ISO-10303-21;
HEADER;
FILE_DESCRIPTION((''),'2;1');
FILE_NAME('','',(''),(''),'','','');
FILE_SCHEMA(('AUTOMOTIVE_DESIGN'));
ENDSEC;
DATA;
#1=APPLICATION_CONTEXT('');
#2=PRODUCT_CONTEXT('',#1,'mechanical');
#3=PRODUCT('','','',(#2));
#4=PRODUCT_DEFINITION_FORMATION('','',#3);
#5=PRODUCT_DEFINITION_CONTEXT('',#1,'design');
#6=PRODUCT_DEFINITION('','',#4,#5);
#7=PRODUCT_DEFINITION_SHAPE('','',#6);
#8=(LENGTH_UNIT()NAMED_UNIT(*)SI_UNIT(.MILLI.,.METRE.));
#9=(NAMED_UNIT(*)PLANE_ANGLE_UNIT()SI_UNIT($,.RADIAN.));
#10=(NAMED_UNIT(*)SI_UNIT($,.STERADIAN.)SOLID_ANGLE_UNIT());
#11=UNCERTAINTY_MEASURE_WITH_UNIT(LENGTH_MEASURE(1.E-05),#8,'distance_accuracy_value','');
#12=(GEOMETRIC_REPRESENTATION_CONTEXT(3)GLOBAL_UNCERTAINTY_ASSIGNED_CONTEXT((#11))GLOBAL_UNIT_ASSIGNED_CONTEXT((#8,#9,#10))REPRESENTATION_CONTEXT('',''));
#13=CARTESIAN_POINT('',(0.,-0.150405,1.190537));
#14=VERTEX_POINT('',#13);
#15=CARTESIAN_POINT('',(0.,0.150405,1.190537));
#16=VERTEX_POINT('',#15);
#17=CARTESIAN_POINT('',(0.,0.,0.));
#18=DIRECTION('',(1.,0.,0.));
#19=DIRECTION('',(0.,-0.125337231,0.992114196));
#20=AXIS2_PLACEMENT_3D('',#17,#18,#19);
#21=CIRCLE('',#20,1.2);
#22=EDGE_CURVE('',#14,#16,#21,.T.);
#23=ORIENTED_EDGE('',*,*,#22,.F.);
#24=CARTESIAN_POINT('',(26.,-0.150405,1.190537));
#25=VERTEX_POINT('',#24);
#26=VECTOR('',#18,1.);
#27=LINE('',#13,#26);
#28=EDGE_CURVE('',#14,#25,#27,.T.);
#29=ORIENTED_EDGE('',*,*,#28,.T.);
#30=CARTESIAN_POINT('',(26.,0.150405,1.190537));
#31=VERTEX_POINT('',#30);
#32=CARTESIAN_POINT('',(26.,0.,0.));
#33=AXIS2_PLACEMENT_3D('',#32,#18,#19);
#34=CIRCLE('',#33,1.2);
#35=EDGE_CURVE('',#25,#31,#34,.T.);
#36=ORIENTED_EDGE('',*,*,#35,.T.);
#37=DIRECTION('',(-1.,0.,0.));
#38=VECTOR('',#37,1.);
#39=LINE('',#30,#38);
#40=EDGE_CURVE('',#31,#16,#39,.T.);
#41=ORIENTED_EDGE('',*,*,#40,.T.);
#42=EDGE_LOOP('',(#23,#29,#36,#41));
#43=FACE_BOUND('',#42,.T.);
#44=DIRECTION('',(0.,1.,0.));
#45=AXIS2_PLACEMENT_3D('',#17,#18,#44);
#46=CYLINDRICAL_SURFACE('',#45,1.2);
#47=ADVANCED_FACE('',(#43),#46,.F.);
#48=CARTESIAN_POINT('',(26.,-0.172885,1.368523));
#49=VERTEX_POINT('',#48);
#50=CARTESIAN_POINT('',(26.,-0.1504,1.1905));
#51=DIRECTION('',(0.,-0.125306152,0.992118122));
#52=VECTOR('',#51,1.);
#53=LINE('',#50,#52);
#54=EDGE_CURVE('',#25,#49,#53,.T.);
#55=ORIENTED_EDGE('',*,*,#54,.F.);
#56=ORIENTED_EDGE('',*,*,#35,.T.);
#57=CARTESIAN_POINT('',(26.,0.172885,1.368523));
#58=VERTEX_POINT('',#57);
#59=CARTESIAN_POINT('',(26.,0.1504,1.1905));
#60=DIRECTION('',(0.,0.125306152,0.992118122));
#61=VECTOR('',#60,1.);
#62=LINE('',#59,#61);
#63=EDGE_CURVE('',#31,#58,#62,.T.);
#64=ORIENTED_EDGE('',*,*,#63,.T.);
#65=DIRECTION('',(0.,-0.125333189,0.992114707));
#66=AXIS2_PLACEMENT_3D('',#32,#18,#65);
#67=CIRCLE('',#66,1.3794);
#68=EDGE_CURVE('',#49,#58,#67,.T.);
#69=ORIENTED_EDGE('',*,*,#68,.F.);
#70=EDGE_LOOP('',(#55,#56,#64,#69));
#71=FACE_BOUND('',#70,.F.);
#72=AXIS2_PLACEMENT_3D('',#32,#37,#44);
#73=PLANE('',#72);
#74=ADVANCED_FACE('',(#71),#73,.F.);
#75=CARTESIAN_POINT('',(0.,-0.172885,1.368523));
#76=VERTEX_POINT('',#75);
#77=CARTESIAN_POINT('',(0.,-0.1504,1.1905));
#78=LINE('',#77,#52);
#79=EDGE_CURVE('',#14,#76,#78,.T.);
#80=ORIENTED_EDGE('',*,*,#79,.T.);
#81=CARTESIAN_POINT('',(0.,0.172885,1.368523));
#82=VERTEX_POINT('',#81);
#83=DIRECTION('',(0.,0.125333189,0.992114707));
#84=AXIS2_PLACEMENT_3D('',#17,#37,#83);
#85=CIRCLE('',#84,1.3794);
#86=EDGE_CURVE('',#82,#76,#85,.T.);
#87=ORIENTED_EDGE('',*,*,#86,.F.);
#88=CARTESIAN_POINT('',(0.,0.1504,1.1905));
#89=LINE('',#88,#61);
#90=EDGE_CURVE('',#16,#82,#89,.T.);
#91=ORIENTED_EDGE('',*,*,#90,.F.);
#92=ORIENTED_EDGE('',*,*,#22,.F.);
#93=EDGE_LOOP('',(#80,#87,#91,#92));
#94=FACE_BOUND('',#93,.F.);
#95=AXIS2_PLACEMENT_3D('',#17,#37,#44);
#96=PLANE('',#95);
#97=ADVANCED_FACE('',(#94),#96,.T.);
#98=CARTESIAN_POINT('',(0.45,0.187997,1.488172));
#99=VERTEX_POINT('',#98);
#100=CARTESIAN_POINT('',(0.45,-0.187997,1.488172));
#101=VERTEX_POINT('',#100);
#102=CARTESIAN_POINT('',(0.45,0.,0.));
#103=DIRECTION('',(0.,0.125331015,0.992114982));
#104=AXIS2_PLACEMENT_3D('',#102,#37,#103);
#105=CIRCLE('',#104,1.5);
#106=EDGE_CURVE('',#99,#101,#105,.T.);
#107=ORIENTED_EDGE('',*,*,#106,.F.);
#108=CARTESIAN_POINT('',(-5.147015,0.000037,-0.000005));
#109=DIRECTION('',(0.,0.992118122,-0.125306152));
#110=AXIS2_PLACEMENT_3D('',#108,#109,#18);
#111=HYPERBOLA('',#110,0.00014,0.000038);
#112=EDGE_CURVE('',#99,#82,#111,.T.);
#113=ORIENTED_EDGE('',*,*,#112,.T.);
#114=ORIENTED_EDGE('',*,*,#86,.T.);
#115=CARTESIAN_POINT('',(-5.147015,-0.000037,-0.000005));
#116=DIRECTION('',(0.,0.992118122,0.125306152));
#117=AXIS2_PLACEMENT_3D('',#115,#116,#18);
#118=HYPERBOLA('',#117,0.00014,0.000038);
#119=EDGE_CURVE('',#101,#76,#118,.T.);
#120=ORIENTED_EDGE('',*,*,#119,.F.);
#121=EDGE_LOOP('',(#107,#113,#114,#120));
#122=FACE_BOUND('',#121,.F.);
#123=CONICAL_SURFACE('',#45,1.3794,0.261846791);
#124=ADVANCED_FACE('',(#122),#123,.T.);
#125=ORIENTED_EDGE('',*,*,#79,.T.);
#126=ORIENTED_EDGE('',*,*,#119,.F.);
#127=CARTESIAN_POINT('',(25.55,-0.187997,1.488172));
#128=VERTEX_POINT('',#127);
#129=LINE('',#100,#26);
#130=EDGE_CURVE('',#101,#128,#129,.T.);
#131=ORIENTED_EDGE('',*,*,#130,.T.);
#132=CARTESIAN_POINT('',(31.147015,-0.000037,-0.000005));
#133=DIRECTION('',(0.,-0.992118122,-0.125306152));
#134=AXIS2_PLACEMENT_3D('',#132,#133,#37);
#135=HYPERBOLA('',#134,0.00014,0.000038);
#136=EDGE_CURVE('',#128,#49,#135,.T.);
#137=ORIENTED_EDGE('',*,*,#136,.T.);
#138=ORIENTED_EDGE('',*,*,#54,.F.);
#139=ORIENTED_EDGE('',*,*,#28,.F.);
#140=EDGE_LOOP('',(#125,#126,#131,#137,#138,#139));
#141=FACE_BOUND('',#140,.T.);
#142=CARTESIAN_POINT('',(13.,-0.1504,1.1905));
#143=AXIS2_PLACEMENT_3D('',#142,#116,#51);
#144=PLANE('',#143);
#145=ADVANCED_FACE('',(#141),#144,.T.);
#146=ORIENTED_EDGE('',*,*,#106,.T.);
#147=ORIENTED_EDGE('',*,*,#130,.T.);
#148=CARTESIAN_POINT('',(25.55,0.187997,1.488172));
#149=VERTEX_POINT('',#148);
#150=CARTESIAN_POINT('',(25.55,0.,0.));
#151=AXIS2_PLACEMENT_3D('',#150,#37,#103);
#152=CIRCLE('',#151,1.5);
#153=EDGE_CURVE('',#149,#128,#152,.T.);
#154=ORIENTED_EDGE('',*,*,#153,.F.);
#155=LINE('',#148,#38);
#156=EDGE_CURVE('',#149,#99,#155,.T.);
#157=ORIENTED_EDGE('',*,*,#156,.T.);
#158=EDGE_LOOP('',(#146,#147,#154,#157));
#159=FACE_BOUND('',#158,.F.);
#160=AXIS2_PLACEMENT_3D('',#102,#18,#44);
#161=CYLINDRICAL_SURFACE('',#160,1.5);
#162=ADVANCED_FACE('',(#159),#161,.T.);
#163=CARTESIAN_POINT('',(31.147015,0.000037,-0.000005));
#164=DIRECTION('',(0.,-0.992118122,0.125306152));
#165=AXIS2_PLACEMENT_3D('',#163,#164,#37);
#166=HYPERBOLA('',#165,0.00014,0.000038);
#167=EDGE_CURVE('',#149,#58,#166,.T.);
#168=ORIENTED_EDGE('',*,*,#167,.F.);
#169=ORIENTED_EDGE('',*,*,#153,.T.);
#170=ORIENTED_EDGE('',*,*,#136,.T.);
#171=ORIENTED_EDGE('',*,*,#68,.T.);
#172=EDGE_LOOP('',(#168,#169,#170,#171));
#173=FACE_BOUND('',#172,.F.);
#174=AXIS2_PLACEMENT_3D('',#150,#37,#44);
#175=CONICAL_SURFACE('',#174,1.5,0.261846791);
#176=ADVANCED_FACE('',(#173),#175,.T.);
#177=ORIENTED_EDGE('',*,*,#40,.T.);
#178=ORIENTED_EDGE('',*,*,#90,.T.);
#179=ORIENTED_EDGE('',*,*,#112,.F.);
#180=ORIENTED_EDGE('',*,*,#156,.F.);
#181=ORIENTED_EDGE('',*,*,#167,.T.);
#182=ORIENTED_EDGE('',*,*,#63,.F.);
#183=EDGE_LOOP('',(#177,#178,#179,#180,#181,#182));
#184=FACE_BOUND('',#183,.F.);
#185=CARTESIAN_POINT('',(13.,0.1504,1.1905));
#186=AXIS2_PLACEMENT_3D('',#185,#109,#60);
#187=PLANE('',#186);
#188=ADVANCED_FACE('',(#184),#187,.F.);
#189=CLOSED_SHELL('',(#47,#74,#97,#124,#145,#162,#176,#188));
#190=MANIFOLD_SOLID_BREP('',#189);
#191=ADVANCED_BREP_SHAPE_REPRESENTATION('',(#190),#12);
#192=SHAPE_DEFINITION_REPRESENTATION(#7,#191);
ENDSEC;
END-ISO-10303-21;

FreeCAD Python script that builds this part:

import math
import FreeCAD as App
import Part
import Sketcher
Q = App.Units.Quantity


def add_polygon(sketch, points):
    """Adds a closed chain of lines whose ends are joined by coincident constraints."""
    first, n = sketch.GeometryCount, len(points)
    for a, b in zip(points, points[1:] + points[:1]):
        sketch.addGeometry(Part.LineSegment(App.Vector(*a, 0), App.Vector(*b, 0)), False)
    for i in range(n):
        sketch.addConstraint(Sketcher.Constraint("Coincident", first + i, 2, first + (i + 1) % n, 1))

doc = App.newDocument("Part")
params = doc.addObject("Spreadsheet::Sheet", "Params")
for row, (alias, value) in enumerate([
    ("sketch1_width", "26 mm"),
    ("sketch1_width2", "25.1 mm"),
    ("revolution_angle", "360 deg"),
    ("sketch2_radius", "1.5 mm"),
    ("sketch2_radius2", "1.2 mm"),
    ("pocket1_length", "26 mm"),
], start=1):
    params.set(f"A{row}", alias)
    params.set(f"B{row}", "=" + value)
    params.setAlias(f"B{row}", alias)

body = doc.addObject("PartDesign::Body", "Body")

# Sketch on XY plane
sketch1 = doc.addObject("Sketcher::SketchObject", "Sketch")
body.addObject(sketch1)
sketch1.AttachmentSupport = (doc.XY_Plane, [""])
sketch1.MapMode = "FlatFace"
add_polygon(sketch1, [(0, 1.38), (0, 1.2), (26, 1.2), (26, 1.38), (25.55, 1.5), (0.45, 1.5)])  # lines 0-5
sketch1.addConstraint([
    Sketcher.Constraint("Vertical", 0),
    Sketcher.Constraint("Horizontal", 1),
    Sketcher.Constraint("Vertical", 2),
    Sketcher.Constraint("Horizontal", 4),
    Sketcher.Constraint("PointOnObject", 0, 2, -2),
    Sketcher.Constraint("Horizontal", 2, 2, 5, 2),
    Sketcher.Constraint("Equal", 3, 5),
    Sketcher.Constraint("DistanceX", 1, 1, 1, 2, Q("26 mm")),
    Sketcher.Constraint("DistanceX", 4, 2, 4, 1, Q("25.1 mm")),
    Sketcher.Constraint("DistanceY", -1, 1, 0, 2, Q("1.2 mm")),
    Sketcher.Constraint("DistanceY", -1, 1, 3, 2, Q("1.5 mm")),
    Sketcher.Constraint("DistanceY", 2, 2, 3, 2, Q("0.1206 mm")),
])
sketch1.setExpression("Constraints[13]", "Params.sketch1_width")
sketch1.setExpression("Constraints[14]", "Params.sketch1_width2")
revolution = doc.addObject("PartDesign::Revolution", "Revolution")
body.addObject(revolution)
revolution.Profile = sketch1
revolution.ReferenceAxis = (sketch1, ["H_Axis"])
revolution.setExpression("Angle", "Params.revolution_angle")

# Sketch on YZ plane
sketch2 = doc.addObject("Sketcher::SketchObject", "Sketch001")
body.addObject(sketch2)
sketch2.AttachmentSupport = (doc.YZ_Plane, [""])
sketch2.MapMode = "FlatFace"
sketch2.AttachmentOffset = App.Placement(App.Vector(0, 0, 13), App.Rotation())
sketch2.addGeometry([
    Part.LineSegment(App.Vector(0.15, 1.19, 0), App.Vector(0.19, 1.49, 0)),
    Part.ArcOfCircle(Part.Circle(App.Vector(0, 0, 0), App.Vector(0, 0, 1), 1.5), math.radians(82.8), math.radians(97.2)),
    Part.LineSegment(App.Vector(-0.19, 1.49, 0), App.Vector(-0.15, 1.19, 0)),
    Part.ArcOfCircle(Part.Circle(App.Vector(0, 0, 0), App.Vector(0, 0, 1), 1.2), math.radians(82.8), math.radians(97.2)),
], False)
sketch2.addConstraint([
    Sketcher.Constraint("Coincident", 0, 2, 1, 1),
    Sketcher.Constraint("Coincident", 1, 2, 2, 1),
    Sketcher.Constraint("Coincident", 2, 2, 3, 2),
    Sketcher.Constraint("Coincident", 3, 1, 0, 1),
    Sketcher.Constraint("Coincident", 1, 3, -1, 1),
    Sketcher.Constraint("Coincident", 3, 3, -1, 1),
    Sketcher.Constraint("Horizontal", 0, 2, 1, 2),
    Sketcher.Constraint("Horizontal", 2, 2, 3, 1),
    Sketcher.Constraint("Radius", 1, Q("1.5 mm")),
    Sketcher.Constraint("Radius", 3, Q("1.2 mm")),
    Sketcher.Constraint("DistanceX", -1, 1, 0, 2, Q("0.188 mm")),
    Sketcher.Constraint("DistanceX", 2, 2, -1, 1, Q("0.1504 mm")),
])
sketch2.setExpression("Constraints[8]", "Params.sketch2_radius")
sketch2.setExpression("Constraints[9]", "Params.sketch2_radius2")
pocket1 = doc.addObject("PartDesign::Pocket", "Pocket")
body.addObject(pocket1)
pocket1.Profile = sketch2
pocket1.setExpression("Length", "Params.pocket1_length")
pocket1.Midplane = True

doc.recompute()
